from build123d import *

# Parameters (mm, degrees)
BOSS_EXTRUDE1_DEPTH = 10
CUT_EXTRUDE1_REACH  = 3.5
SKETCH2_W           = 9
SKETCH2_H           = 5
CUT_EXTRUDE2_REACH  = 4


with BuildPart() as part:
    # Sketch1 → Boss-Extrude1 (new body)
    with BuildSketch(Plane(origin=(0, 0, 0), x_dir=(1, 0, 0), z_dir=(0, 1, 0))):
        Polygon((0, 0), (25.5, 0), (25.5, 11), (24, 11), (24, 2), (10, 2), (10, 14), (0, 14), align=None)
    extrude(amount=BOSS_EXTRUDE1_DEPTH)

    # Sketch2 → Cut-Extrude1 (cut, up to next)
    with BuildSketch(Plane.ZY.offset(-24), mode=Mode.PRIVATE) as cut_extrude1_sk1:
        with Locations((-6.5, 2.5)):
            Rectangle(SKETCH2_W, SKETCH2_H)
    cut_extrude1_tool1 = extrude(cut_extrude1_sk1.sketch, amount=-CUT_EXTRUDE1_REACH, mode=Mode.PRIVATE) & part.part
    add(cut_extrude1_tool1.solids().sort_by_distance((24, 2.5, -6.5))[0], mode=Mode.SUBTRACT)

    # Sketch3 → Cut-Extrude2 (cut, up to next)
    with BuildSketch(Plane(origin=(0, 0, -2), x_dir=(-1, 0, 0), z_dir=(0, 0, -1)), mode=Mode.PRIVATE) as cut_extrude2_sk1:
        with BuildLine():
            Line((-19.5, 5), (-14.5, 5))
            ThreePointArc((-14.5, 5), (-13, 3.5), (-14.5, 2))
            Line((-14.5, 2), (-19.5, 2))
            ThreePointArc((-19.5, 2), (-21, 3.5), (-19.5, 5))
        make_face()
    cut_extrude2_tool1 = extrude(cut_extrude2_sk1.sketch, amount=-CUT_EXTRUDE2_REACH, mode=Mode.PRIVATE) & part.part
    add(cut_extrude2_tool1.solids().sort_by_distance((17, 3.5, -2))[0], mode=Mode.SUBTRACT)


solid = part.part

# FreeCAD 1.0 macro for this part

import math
import FreeCAD as App
import Part
import Sketcher
Q = App.Units.Quantity


def add_polygon(sketch, points):
    """Adds a closed chain of lines whose ends are joined by coincident constraints."""
    first, n = sketch.GeometryCount, len(points)
    for a, b in zip(points, points[1:] + points[:1]):
        sketch.addGeometry(Part.LineSegment(App.Vector(*a, 0), App.Vector(*b, 0)), False)
    for i in range(n):
        sketch.addConstraint(Sketcher.Constraint("Coincident", first + i, 2, first + (i + 1) % n, 1))

doc = App.newDocument("Part")
body = doc.addObject("PartDesign::Body", "Body")

# Sketch on XZ plane
sketch1 = body.newObject("Sketcher::SketchObject", "Sketch")
sketch1.AttachmentSupport = (doc.getObject("XZ_Plane"), [""])
sketch1.MapMode = "FlatFace"
add_polygon(sketch1, [(0, 0), (25.5, 0), (25.5, -11), (24, -11), (24, -2), (10, -2), (10, -14), (0, -14)])  # lines 0-7
sketch1.addConstraint([
    Sketcher.Constraint("Horizontal", 0),
    Sketcher.Constraint("Vertical", 1),
    Sketcher.Constraint("Horizontal", 2),
    Sketcher.Constraint("Vertical", 3),
    Sketcher.Constraint("Horizontal", 4),
    Sketcher.Constraint("Vertical", 5),
    Sketcher.Constraint("Horizontal", 6),
    Sketcher.Constraint("Vertical", 7),
    Sketcher.Constraint("Coincident", 7, 2, -1, 1),
    Sketcher.Constraint("Equal", 4, 7),
    Sketcher.Constraint("DistanceX", 4, 2, 4, 1, Q("14 mm")),
    Sketcher.Constraint("DistanceX", 6, 2, 6, 1, Q("10 mm")),
    Sketcher.Constraint("DistanceY", 1, 2, 1, 1, Q("11 mm")),
    Sketcher.Constraint("DistanceY", 3, 1, 3, 2, Q("9 mm")),
    Sketcher.Constraint("DistanceX", 0, 1, 0, 2, Q("25.5 mm")),
])
pad1 = body.newObject("PartDesign::Pad", "Pad")
pad1.Profile = sketch1
pad1.Length = 10
pad1.Reversed = True

# Sketch on YZ plane
sketch2 = body.newObject("Sketcher::SketchObject", "Sketch001")
sketch2.AttachmentSupport = (doc.getObject("YZ_Plane"), [""])
sketch2.MapMode = "FlatFace"
sketch2.AttachmentOffset = App.Placement(App.Vector(0, 0, 24), App.Rotation())
add_polygon(sketch2, [(5, -11), (0, -11), (0, -2), (5, -2)])  # lines 0-3
sketch2.addConstraint([
    Sketcher.Constraint("Horizontal", 0),
    Sketcher.Constraint("Vertical", 1),
    Sketcher.Constraint("Horizontal", 2),
    Sketcher.Constraint("Vertical", 3),
    Sketcher.Constraint("PointOnObject", 0, 2, -2),
    Sketcher.Constraint("DistanceX", 0, 2, 0, 1, Q("5 mm")),
    Sketcher.Constraint("DistanceY", 1, 1, 1, 2, Q("9 mm")),
    Sketcher.Constraint("DistanceY", 0, 2, -1, 1, Q("11 mm")),
])
pocket1 = body.newObject("PartDesign::Pocket", "Pocket")
pocket1.Profile = sketch2
pocket1.Type = "UpToFirst"
pocket1.Reversed = True

# Sketch on XY plane
sketch3 = body.newObject("Sketcher::SketchObject", "Sketch002")
sketch3.AttachmentSupport = (doc.getObject("XY_Plane"), [""])
sketch3.MapMode = "FlatFace"
sketch3.AttachmentOffset = App.Placement(App.Vector(0, 0, -2), App.Rotation())
sketch3.addGeometry([
    Part.LineSegment(App.Vector(14.5, 5, 0), App.Vector(19.5, 5, 0)),
    Part.ArcOfCircle(Part.Circle(App.Vector(19.5, 3.5, 0), App.Vector(0, 0, 1), 1.5), math.radians(-90), math.radians(90)),
    Part.LineSegment(App.Vector(19.5, 2, 0), App.Vector(14.5, 2, 0)),
    Part.ArcOfCircle(Part.Circle(App.Vector(14.5, 3.5, 0), App.Vector(0, 0, 1), 1.5), math.radians(90), math.radians(270)),
], False)
sketch3.addConstraint([
    Sketcher.Constraint("Tangent", 0, 2, 1, 2),
    Sketcher.Constraint("Tangent", 1, 1, 2, 1),
    Sketcher.Constraint("Tangent", 2, 2, 3, 2),
    Sketcher.Constraint("Tangent", 3, 1, 0, 1),
    Sketcher.Constraint("Horizontal", 0),
    Sketcher.Constraint("Horizontal", 2),
    Sketcher.Constraint("Radius", 1, Q("1.5 mm")),
    Sketcher.Constraint("DistanceX", 0, 1, 0, 2, Q("5 mm")),
    Sketcher.Constraint("DistanceY", -1, 1, 0, 2, Q("5 mm")),
    Sketcher.Constraint("DistanceX", -1, 1, 1, 3, Q("19.5 mm")),
])
pocket2 = body.newObject("PartDesign::Pocket", "Pocket001")
pocket2.Profile = sketch3
pocket2.Type = "UpToFirst"
pocket2.Reversed = True

doc.recompute()
